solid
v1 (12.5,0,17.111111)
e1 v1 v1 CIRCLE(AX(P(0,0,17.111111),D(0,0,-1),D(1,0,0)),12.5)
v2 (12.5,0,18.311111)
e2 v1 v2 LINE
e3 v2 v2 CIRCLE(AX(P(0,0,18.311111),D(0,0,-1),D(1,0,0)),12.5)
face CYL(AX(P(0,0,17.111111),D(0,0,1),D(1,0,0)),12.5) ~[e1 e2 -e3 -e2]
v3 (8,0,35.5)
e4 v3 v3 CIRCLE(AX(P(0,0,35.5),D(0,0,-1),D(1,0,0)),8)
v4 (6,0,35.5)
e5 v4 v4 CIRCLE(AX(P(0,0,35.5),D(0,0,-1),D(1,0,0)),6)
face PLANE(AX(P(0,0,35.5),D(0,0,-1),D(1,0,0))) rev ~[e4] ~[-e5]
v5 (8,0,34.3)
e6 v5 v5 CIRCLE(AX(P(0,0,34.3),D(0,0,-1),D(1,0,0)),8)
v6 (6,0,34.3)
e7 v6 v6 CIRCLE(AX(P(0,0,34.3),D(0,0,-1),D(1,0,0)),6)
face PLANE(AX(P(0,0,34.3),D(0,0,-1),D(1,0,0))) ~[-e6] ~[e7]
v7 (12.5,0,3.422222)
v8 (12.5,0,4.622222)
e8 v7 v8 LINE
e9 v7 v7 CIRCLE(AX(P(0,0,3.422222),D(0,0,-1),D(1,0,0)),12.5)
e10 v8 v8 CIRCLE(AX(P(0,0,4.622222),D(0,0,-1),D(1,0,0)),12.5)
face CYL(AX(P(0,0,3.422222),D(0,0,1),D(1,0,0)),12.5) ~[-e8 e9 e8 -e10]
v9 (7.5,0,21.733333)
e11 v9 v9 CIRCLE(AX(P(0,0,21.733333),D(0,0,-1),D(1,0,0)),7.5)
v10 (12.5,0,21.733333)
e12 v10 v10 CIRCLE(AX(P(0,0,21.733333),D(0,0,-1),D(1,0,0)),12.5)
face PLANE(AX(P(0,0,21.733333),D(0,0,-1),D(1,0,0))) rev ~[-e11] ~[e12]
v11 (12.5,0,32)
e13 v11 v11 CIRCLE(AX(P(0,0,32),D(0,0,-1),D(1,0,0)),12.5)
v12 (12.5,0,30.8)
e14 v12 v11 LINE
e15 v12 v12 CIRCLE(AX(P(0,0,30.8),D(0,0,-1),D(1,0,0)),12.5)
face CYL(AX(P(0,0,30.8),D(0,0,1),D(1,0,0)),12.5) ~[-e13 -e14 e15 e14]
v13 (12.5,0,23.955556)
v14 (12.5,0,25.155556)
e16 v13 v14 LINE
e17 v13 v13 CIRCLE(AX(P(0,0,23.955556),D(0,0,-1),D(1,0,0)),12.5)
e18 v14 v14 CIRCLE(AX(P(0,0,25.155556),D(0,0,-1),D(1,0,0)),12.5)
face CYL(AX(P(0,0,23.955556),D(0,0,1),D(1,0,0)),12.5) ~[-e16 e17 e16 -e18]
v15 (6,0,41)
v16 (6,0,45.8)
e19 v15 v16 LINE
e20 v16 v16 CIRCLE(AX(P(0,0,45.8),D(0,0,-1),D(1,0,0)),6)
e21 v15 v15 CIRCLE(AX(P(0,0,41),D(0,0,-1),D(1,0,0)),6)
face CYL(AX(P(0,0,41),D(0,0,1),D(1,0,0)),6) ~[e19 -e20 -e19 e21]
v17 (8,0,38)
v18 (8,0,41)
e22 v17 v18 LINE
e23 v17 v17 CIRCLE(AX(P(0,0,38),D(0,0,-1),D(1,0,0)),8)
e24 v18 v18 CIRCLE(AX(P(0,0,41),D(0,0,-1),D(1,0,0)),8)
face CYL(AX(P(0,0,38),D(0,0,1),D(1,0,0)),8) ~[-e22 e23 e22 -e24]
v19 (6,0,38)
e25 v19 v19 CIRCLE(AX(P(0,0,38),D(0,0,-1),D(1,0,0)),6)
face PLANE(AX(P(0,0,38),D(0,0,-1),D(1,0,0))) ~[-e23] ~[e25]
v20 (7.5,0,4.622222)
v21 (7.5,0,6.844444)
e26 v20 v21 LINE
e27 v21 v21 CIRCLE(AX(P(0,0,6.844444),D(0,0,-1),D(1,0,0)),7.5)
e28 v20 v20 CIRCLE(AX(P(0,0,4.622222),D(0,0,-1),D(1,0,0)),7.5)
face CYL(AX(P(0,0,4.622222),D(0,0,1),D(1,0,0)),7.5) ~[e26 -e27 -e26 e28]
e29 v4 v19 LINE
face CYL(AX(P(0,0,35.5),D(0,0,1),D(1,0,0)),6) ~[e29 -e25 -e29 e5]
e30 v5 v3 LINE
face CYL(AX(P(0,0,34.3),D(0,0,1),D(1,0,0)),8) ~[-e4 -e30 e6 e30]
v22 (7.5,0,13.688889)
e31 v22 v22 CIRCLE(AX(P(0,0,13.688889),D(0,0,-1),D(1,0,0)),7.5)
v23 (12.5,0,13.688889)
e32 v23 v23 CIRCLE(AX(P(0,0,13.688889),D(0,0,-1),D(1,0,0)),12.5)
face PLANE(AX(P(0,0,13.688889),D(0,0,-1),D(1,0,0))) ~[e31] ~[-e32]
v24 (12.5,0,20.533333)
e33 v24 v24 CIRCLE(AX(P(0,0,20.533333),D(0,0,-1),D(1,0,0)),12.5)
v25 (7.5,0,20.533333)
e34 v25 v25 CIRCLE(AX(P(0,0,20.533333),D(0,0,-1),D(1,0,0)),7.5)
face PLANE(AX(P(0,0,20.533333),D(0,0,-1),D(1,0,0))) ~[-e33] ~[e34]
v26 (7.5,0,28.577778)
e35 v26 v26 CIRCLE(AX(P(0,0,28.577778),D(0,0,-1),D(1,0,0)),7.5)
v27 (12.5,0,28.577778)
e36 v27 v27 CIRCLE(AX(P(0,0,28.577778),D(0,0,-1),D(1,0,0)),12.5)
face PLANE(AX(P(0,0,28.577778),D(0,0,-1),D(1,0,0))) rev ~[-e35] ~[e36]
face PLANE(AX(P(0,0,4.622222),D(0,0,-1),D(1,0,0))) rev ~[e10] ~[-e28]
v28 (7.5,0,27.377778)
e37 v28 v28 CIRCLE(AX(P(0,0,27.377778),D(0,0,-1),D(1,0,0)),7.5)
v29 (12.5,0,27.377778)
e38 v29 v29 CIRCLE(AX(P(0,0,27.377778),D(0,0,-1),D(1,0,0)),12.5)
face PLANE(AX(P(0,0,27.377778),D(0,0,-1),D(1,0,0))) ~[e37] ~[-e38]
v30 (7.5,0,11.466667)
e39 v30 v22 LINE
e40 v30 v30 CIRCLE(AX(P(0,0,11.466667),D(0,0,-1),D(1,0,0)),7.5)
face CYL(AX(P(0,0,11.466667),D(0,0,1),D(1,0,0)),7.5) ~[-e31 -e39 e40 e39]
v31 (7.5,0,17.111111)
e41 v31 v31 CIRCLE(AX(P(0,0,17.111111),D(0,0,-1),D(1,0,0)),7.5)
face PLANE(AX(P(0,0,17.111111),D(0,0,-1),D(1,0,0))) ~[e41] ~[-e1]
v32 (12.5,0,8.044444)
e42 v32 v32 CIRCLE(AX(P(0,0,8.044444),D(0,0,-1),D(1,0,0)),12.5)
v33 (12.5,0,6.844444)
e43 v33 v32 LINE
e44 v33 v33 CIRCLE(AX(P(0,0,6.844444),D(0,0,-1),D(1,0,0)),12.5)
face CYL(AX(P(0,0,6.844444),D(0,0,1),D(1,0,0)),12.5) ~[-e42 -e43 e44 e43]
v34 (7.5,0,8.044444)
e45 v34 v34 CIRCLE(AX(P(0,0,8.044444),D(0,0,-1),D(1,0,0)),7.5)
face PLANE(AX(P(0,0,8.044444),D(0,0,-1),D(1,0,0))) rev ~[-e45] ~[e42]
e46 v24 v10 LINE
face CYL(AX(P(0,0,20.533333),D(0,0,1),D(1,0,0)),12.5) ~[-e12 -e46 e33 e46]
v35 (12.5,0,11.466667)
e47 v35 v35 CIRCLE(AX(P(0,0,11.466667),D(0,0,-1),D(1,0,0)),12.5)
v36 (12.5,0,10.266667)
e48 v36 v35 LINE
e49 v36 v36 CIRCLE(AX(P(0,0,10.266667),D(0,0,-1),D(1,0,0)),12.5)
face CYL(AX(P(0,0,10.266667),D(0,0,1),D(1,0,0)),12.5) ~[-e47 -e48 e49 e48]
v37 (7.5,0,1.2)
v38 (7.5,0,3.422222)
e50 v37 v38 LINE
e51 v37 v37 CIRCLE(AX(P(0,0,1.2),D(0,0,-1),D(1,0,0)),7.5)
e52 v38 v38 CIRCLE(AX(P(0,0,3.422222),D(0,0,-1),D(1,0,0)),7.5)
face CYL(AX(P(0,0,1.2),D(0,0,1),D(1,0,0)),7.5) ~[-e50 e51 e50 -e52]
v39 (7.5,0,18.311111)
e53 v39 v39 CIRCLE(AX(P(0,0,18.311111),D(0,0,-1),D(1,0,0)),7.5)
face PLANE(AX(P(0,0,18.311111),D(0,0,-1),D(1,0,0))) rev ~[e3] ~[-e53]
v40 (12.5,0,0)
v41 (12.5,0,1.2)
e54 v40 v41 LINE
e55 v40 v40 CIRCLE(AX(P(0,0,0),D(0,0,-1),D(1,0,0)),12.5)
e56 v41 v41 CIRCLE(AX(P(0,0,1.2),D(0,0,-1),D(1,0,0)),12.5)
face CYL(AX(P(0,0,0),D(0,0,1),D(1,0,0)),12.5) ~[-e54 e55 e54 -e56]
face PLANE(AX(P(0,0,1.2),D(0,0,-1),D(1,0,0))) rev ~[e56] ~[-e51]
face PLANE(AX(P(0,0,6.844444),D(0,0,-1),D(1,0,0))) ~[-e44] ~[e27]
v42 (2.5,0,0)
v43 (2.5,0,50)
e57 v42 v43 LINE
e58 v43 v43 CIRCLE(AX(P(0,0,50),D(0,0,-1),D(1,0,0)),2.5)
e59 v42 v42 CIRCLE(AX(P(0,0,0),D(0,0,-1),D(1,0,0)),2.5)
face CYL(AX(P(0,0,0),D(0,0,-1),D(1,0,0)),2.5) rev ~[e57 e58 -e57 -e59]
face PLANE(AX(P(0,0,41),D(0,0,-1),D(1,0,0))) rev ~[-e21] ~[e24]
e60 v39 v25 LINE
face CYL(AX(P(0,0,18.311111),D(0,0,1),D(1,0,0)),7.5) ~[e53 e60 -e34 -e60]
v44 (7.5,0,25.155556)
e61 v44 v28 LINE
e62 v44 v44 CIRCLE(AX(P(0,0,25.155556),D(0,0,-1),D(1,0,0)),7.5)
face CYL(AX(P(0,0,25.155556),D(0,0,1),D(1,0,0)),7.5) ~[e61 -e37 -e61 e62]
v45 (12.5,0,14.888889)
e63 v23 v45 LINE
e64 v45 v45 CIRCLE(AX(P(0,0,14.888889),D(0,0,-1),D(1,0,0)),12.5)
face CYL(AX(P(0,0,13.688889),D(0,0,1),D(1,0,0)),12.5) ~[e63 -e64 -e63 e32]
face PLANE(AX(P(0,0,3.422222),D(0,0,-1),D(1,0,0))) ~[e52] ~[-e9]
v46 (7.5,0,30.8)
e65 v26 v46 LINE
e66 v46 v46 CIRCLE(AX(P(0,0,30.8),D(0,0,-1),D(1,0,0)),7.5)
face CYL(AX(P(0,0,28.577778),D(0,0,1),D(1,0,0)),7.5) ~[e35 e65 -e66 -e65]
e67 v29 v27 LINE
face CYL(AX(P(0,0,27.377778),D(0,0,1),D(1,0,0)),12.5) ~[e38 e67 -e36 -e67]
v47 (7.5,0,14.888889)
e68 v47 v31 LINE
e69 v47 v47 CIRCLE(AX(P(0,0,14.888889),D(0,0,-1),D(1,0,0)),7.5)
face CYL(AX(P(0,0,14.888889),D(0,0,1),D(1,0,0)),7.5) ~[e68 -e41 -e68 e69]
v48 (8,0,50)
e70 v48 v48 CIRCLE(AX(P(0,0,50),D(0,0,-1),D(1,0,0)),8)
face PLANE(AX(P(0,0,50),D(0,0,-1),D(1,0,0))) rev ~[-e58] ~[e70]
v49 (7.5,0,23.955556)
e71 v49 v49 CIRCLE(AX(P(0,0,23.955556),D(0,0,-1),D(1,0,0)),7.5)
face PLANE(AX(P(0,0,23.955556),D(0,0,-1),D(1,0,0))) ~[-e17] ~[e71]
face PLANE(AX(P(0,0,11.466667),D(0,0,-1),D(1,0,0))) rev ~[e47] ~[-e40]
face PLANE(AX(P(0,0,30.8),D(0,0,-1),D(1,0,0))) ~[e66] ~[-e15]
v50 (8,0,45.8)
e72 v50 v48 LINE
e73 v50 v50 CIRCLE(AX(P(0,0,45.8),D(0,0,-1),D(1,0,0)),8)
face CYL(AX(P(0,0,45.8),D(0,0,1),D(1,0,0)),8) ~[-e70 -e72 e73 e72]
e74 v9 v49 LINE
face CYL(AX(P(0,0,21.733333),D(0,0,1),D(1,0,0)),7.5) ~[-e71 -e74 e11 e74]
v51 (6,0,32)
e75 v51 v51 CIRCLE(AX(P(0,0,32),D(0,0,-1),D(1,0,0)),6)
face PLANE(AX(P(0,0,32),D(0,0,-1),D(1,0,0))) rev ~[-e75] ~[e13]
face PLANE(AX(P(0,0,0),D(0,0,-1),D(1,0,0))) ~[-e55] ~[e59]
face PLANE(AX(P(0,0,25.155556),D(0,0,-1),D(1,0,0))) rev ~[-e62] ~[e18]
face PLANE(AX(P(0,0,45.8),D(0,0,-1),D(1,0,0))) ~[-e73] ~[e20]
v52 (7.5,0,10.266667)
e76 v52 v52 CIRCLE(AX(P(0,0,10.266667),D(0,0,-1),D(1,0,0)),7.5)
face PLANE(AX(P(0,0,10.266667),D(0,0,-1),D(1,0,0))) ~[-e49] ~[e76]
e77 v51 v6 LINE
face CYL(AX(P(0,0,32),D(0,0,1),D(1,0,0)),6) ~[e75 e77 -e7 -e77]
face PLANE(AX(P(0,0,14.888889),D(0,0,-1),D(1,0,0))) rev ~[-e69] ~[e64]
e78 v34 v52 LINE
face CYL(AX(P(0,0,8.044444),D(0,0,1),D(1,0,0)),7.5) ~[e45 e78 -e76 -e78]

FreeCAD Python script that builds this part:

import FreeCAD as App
import Part
import Sketcher


def add_polygon(sketch, points):
    """Adds a closed chain of lines whose ends are joined by coincident constraints."""
    first, n = sketch.GeometryCount, len(points)
    for a, b in zip(points, points[1:] + points[:1]):
        sketch.addGeometry(Part.LineSegment(App.Vector(*a, 0), App.Vector(*b, 0)), False)
    for i in range(n):
        sketch.addConstraint(Sketcher.Constraint("Coincident", first + i, 2, first + (i + 1) % n, 1))

doc = App.newDocument("Part")
body = doc.addObject("PartDesign::Body", "Body")

sketch1 = doc.addObject("Sketcher::SketchObject", "Sketch")
body.addObject(sketch1)
sketch1.AttachmentSupport = (doc.XZ_Plane, [""])
sketch1.MapMode = "FlatFace"
add_polygon(sketch1, [(0, 50), (0, 0), (12.5, 0), (12.5, 1.2), (7.5, 1.2), (7.5, 3.422222), (12.5, 3.422222), (12.5, 4.622222), (7.5, 4.622222), (7.5, 6.844444), (12.5, 6.844444), (12.5, 8.044444), (7.5, 8.044444), (7.5, 10.266667), (12.5, 10.266667), (12.5, 11.466667), (7.5, 11.466667), (7.5, 13.688889), (12.5, 13.688889), (12.5, 14.888889), (7.5, 14.888889), (7.5, 17.111111), (12.5, 17.111111), (12.5, 18.311111), (7.5, 18.311111), (7.5, 20.533333), (12.5, 20.533333), (12.5, 21.733333), (7.5, 21.733333), (7.5, 23.955556), (12.5, 23.955556), (12.5, 25.155556), (7.5, 25.155556), (7.5, 27.377778), (12.5, 27.377778), (12.5, 28.577778), (7.5, 28.577778), (7.5, 30.8), (12.5, 30.8), (12.5, 32), (6, 32), (6, 34.3), (8, 34.3), (8, 35.5), (6, 35.5), (6, 38), (8, 38), (8, 41), (6, 41), (6, 45.8), (8, 45.8), (8, 50)])
sketch1.addConstraint([
    Sketcher.Constraint("Vertical", 0),
    Sketcher.Constraint("Horizontal", 1),
    Sketcher.Constraint("Vertical", 2),
    Sketcher.Constraint("Horizontal", 3),
    Sketcher.Constraint("Vertical", 4),
    Sketcher.Constraint("Horizontal", 5),
    Sketcher.Constraint("Vertical", 6),
    Sketcher.Constraint("Horizontal", 7),
    Sketcher.Constraint("Vertical", 8),
    Sketcher.Constraint("Horizontal", 9),
    Sketcher.Constraint("Vertical", 10),
    Sketcher.Constraint("Horizontal", 11),
    Sketcher.Constraint("Vertical", 12),
    Sketcher.Constraint("Horizontal", 13),
    Sketcher.Constraint("Vertical", 14),
    Sketcher.Constraint("Horizontal", 15),
    Sketcher.Constraint("Vertical", 16),
    Sketcher.Constraint("Horizontal", 17),
    Sketcher.Constraint("Vertical", 18),
    Sketcher.Constraint("Horizontal", 19),
    Sketcher.Constraint("Vertical", 20),
    Sketcher.Constraint("Horizontal", 21),
    Sketcher.Constraint("Vertical", 22),
    Sketcher.Constraint("Horizontal", 23),
    Sketcher.Constraint("Vertical", 24),
    Sketcher.Constraint("Horizontal", 25),
    Sketcher.Constraint("Vertical", 26),
    Sketcher.Constraint("Horizontal", 27),
    Sketcher.Constraint("Vertical", 28),
    Sketcher.Constraint("Horizontal", 29),
    Sketcher.Constraint("Vertical", 30),
    Sketcher.Constraint("Horizontal", 31),
    Sketcher.Constraint("Vertical", 32),
    Sketcher.Constraint("Horizontal", 33),
    Sketcher.Constraint("Vertical", 34),
    Sketcher.Constraint("Horizontal", 35),
    Sketcher.Constraint("Vertical", 36),
    Sketcher.Constraint("Horizontal", 37),
    Sketcher.Constraint("Vertical", 38),
    Sketcher.Constraint("Horizontal", 39),
    Sketcher.Constraint("Vertical", 40),
    Sketcher.Constraint("Horizontal", 41),
    Sketcher.Constraint("Vertical", 42),
    Sketcher.Constraint("Horizontal", 43),
    Sketcher.Constraint("Vertical", 44),
    Sketcher.Constraint("Horizontal", 45),
    Sketcher.Constraint("Vertical", 46),
    Sketcher.Constraint("Horizontal", 47),
    Sketcher.Constraint("Vertical", 48),
    Sketcher.Constraint("Horizontal", 49),
    Sketcher.Constraint("Vertical", 50),
    Sketcher.Constraint("Horizontal", 51),
    Sketcher.Constraint("Coincident", 0, 2, -1, 1),
    Sketcher.Constraint("Vertical", 2, 2, 5, 2),
    Sketcher.Constraint("Vertical", 4, 2, 7, 2),
    Sketcher.Constraint("Vertical", 6, 2, 9, 2),
    Sketcher.Constraint("Vertical", 8, 2, 11, 2),
    Sketcher.Constraint("Vertical", 10, 2, 13, 2),
    Sketcher.Constraint("Vertical", 12, 2, 15, 2),
    Sketcher.Constraint("Vertical", 14, 2, 17, 2),
    Sketcher.Constraint("Vertical", 16, 2, 19, 2),
    Sketcher.Constraint("Vertical", 18, 2, 21, 2),
    Sketcher.Constraint("Vertical", 20, 2, 23, 2),
    Sketcher.Constraint("Vertical", 22, 2, 25, 2),
    Sketcher.Constraint("Vertical", 24, 2, 27, 2),
    Sketcher.Constraint("Vertical", 26, 2, 29, 2),
    Sketcher.Constraint("Vertical", 28, 2, 31, 2),
    Sketcher.Constraint("Vertical", 30, 2, 33, 2),
    Sketcher.Constraint("Vertical", 32, 2, 35, 2),
    Sketcher.Constraint("Vertical", 34, 2, 37, 2),
    Sketcher.Constraint("Vertical", 40, 2, 43, 2),
    Sketcher.Constraint("Vertical", 42, 2, 45, 2),
    Sketcher.Constraint("Vertical", 44, 2, 47, 2),
    Sketcher.Constraint("Vertical", 46, 2, 49, 2),
    Sketcher.Constraint("Equal", 2, 6),
    Sketcher.Constraint("Equal", 4, 8),
    Sketcher.Constraint("Equal", 6, 10),
    Sketcher.Constraint("Equal", 8, 12),
    Sketcher.Constraint("Equal", 10, 14),
    Sketcher.Constraint("Equal", 12, 16),
    Sketcher.Constraint("Equal", 14, 18),
    Sketcher.Constraint("Equal", 16, 20),
    Sketcher.Constraint("Equal", 18, 22),
    Sketcher.Constraint("Equal", 20, 24),
    Sketcher.Constraint("Equal", 22, 26),
    Sketcher.Constraint("Equal", 24, 28),
    Sketcher.Constraint("Equal", 26, 30),
    Sketcher.Constraint("Equal", 28, 32),
    Sketcher.Constraint("Equal", 30, 34),
    Sketcher.Constraint("Equal", 32, 36),
    Sketcher.Constraint("Equal", 34, 38),
    Sketcher.Constraint("Equal", 38, 42),
    Sketcher.Constraint("DistanceX", 3, 2, 3, 1, 5.0),
    Sketcher.Constraint("DistanceX", 41, 1, 41, 2, 2.0),
    Sketcher.Constraint("DistanceX", 51, 2, 51, 1, 8.0),
    Sketcher.Constraint("DistanceY", 0, 2, 0, 1, 50.0),
    Sketcher.Constraint("DistanceY", 46, 1, 46, 2, 3.0),
    Sketcher.Constraint("DistanceX", 1, 1, 1, 2, 12.5),
    Sketcher.Constraint("DistanceY", 2, 1, 2, 2, 1.2),
    Sketcher.Constraint("DistanceY", 40, 1, 40, 2, 2.3),
    Sketcher.Constraint("DistanceY", 44, 1, 44, 2, 2.5),
    Sketcher.Constraint("DistanceY", 48, 1, 48, 2, 4.8),
    Sketcher.Constraint("DistanceY", 50, 1, 50, 2, 4.2),
])
revolution = doc.addObject("PartDesign::Revolution", "Revolution")
body.addObject(revolution)
revolution.Profile = sketch1
revolution.ReferenceAxis = (sketch1, ["V_Axis"])
revolution.Angle = 360

sketch2 = doc.addObject("Sketcher::SketchObject", "Sketch001")
body.addObject(sketch2)
sketch2.AttachmentSupport = (doc.XY_Plane, [""])
sketch2.MapMode = "FlatFace"
sketch2.addGeometry(Part.Circle(App.Vector(0, 0, 0), App.Vector(0, 0, 1), 2.5), False)
sketch2.addConstraint([
    Sketcher.Constraint("Coincident", 0, 3, -1, 1),
    Sketcher.Constraint("Diameter", 0, 5.0),
])
pocket1 = doc.addObject("PartDesign::Pocket", "Pocket")
body.addObject(pocket1)
pocket1.Profile = sketch2
pocket1.Type = "ThroughAll"
pocket1.Reversed = True

doc.recompute()
